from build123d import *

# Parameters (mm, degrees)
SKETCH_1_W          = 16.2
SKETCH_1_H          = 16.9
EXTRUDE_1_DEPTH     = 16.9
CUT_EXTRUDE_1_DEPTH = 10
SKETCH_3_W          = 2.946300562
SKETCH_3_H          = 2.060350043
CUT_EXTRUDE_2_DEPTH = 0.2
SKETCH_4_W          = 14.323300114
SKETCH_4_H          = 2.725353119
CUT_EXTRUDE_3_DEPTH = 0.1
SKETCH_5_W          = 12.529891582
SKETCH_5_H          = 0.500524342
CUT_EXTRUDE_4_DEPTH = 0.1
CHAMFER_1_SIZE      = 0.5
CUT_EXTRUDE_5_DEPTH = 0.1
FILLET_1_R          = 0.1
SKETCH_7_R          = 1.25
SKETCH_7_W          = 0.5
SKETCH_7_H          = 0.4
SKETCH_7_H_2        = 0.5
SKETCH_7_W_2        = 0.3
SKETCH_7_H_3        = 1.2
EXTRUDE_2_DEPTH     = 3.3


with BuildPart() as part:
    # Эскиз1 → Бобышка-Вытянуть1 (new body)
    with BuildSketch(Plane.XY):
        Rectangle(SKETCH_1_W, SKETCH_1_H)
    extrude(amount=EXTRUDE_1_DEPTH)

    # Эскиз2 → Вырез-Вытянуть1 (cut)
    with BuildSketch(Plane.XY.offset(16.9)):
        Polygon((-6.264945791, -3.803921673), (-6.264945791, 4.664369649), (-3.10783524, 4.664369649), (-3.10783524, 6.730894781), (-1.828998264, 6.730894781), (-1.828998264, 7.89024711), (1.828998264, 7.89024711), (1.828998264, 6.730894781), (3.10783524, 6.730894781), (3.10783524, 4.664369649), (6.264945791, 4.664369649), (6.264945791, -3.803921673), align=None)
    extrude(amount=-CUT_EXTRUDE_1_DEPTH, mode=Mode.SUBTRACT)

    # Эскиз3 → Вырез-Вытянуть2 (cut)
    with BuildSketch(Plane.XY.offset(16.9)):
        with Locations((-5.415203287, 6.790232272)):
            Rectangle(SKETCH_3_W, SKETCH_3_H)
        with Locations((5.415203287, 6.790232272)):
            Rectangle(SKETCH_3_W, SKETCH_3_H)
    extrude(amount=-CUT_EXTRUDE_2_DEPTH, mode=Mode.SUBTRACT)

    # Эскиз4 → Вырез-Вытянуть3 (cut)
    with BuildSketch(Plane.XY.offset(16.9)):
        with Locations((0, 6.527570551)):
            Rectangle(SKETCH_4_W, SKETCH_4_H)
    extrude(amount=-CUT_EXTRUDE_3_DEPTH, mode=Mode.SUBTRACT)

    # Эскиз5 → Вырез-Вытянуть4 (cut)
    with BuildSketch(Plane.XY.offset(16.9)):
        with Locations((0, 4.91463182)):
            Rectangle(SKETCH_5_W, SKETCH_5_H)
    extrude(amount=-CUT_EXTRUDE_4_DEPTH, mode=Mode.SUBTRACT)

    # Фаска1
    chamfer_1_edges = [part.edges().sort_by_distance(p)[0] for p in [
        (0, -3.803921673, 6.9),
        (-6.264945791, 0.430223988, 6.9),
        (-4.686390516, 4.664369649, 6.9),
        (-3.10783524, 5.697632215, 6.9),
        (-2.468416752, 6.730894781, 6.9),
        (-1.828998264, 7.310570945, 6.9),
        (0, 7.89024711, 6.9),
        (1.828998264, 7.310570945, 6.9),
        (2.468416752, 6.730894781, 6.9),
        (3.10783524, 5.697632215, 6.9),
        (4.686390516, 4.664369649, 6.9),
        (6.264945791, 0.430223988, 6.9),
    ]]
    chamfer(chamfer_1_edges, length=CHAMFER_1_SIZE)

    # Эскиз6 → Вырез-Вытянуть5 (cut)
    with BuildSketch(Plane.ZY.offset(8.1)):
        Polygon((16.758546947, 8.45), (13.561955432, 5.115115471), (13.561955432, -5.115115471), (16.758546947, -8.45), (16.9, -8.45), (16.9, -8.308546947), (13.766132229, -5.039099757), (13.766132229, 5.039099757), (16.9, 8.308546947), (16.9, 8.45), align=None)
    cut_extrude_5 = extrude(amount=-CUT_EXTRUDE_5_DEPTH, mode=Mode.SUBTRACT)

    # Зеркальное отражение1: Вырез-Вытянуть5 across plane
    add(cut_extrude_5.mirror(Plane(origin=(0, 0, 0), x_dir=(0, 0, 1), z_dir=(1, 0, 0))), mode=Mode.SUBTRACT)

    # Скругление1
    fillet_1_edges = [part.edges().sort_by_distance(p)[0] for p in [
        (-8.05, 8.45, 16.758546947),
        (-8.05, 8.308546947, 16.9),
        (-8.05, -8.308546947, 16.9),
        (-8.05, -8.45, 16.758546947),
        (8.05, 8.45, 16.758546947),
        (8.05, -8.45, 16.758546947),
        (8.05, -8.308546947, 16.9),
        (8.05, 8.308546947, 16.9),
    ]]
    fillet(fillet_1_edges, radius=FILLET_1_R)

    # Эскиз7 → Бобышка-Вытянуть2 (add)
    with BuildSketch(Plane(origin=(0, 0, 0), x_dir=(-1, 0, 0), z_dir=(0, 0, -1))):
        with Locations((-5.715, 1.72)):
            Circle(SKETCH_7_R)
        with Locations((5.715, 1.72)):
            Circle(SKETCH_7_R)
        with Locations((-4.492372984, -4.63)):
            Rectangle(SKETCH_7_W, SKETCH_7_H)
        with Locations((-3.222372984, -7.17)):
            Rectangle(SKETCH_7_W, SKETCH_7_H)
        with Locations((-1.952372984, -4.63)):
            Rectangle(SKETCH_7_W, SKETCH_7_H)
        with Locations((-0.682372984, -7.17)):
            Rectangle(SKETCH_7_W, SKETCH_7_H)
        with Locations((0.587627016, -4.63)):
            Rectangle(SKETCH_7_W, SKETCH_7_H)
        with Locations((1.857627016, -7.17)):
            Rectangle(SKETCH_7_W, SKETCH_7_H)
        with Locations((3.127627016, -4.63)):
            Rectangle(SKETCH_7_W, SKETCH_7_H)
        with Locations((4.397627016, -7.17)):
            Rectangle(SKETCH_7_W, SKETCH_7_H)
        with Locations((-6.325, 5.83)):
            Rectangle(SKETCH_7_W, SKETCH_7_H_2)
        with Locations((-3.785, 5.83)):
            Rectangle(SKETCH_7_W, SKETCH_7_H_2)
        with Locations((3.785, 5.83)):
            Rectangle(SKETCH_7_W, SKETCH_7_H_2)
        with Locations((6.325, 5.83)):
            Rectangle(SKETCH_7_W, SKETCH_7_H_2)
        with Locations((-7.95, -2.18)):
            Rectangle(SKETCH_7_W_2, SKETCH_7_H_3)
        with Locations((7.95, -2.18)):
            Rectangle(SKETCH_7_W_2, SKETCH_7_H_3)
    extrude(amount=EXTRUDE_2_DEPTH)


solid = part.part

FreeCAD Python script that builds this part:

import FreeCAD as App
import Part
import Sketcher
from FreeCAD import Vector


def edges_at(feature, points):
    """Names of the edges that pass closest to the given points."""
    edges = feature.Shape.Edges
    near = lambda p: min(range(len(edges)), key=lambda i: edges[i].distToShape(Part.Vertex(*p))[0])
    return sorted({f"Edge{near(p) + 1}" for p in points})


def add_polygon(sketch, points):
    """Adds a closed chain of lines whose ends are joined by coincident constraints."""
    first, n = sketch.GeometryCount, len(points)
    for a, b in zip(points, points[1:] + points[:1]):
        sketch.addGeometry(Part.LineSegment(App.Vector(*a, 0), App.Vector(*b, 0)), False)
    for i in range(n):
        sketch.addConstraint(Sketcher.Constraint("Coincident", first + i, 2, first + (i + 1) % n, 1))

doc = App.newDocument("Part")
body = doc.addObject("PartDesign::Body", "Body")

# Sketch on XY plane
sketch1 = body.newObject("Sketcher::SketchObject", "Sketch")
sketch1.AttachmentSupport = (doc.getObject("XY_Plane"), [""])
sketch1.MapMode = "FlatFace"
add_polygon(sketch1, [(-8, 8), (-8, -8), (8, -8), (8, 8)])  # lines 0-3
sketch1.addConstraint(Sketcher.Constraint("Vertical", 0))
sketch1.addConstraint(Sketcher.Constraint("Horizontal", 1))
sketch1.addConstraint(Sketcher.Constraint("Vertical", 2))
sketch1.addConstraint(Sketcher.Constraint("Horizontal", 3))
sketch1.addConstraint(Sketcher.Constraint("Symmetric", 0, 2, 2, 2, -1, 1))
sketch1.addConstraint(Sketcher.Constraint("DistanceX", 1, 1, 1, 2, 16.2))
sketch1.addConstraint(Sketcher.Constraint("DistanceY", 0, 2, 0, 1, 16.9))
pad1 = body.newObject("PartDesign::Pad", "Pad")
pad1.Profile = sketch1
pad1.Length = 16.9

# Sketch on XY plane
sketch2 = body.newObject("Sketcher::SketchObject", "Sketch001")
sketch2.AttachmentSupport = (doc.getObject("XY_Plane"), [""])
sketch2.MapMode = "FlatFace"
sketch2.AttachmentOffset = App.Placement(Vector(0, 0, 16.9), App.Rotation())
add_polygon(sketch2, [(-6.3, 4.7), (-6.3, -3.8), (6.3, -3.8), (6.3, 4.7), (3.1, 4.7), (3.1, 6.7), (1.8, 6.7), (1.8, 7.9), (-1.8, 7.9), (-1.8, 6.7), (-3.1, 6.7), (-3.1, 4.7)])  # lines 0-11
sketch2.addConstraint(Sketcher.Constraint("Vertical", 0))
sketch2.addConstraint(Sketcher.Constraint("Horizontal", 1))
sketch2.addConstraint(Sketcher.Constraint("Vertical", 2))
sketch2.addConstraint(Sketcher.Constraint("Horizontal", 3))
sketch2.addConstraint(Sketcher.Constraint("Vertical", 4))
sketch2.addConstraint(Sketcher.Constraint("Horizontal", 5))
sketch2.addConstraint(Sketcher.Constraint("Vertical", 6))
sketch2.addConstraint(Sketcher.Constraint("Horizontal", 7))
sketch2.addConstraint(Sketcher.Constraint("Vertical", 8))
sketch2.addConstraint(Sketcher.Constraint("Horizontal", 9))
sketch2.addConstraint(Sketcher.Constraint("Vertical", 10))
sketch2.addConstraint(Sketcher.Constraint("Horizontal", 11))
sketch2.addConstraint(Sketcher.Constraint("Symmetric", 5, 2, 8, 2, -2))
sketch2.addConstraint(Sketcher.Constraint("Symmetric", 3, 2, 10, 2, -2))
sketch2.addConstraint(Sketcher.Constraint("Equal", 3, 11))
sketch2.addConstraint(Sketcher.Constraint("DistanceX", -1, 1, 5, 2, 1.828998))
sketch2.addConstraint(Sketcher.Constraint("DistanceX", 1, 1, 1, 2, 12.529892))
sketch2.addConstraint(Sketcher.Constraint("DistanceX", 3, 2, 3, 1, 3.157111))
sketch2.addConstraint(Sketcher.Constraint("DistanceY", 0, 2, 0, 1, 8.468291))
sketch2.addConstraint(Sketcher.Constraint("DistanceY", 4, 1, 4, 2, 2.066525))
sketch2.addConstraint(Sketcher.Constraint("DistanceY", 6, 1, 6, 2, 1.159352))
sketch2.addConstraint(Sketcher.Constraint("DistanceY", 0, 2, -1, 1, 3.803922))
pocket1 = body.newObject("PartDesign::Pocket", "Pocket")
pocket1.Profile = sketch2
pocket1.Length = 10

# Sketch on XY plane
sketch3 = body.newObject("Sketcher::SketchObject", "Sketch002")
sketch3.AttachmentSupport = (doc.getObject("XY_Plane"), [""])
sketch3.MapMode = "FlatFace"
sketch3.AttachmentOffset = App.Placement(Vector(0, 0, 16.9), App.Rotation())
add_polygon(sketch3, [(-6.9, 7.8), (-6.9, 5.8), (-3.9, 5.8), (-3.9, 7.8)])  # lines 0-3
add_polygon(sketch3, [(3.9, 7.8), (3.9, 5.8), (6.9, 5.8), (6.9, 7.8)])  # lines 4-7
sketch3.addConstraint(Sketcher.Constraint("Vertical", 0))
sketch3.addConstraint(Sketcher.Constraint("Horizontal", 1))
sketch3.addConstraint(Sketcher.Constraint("Vertical", 2))
sketch3.addConstraint(Sketcher.Constraint("Horizontal", 3))
sketch3.addConstraint(Sketcher.Constraint("Vertical", 4))
sketch3.addConstraint(Sketcher.Constraint("Horizontal", 5))
sketch3.addConstraint(Sketcher.Constraint("Vertical", 6))
sketch3.addConstraint(Sketcher.Constraint("Horizontal", 7))
sketch3.addConstraint(Sketcher.Constraint("Symmetric", 1, 2, 4, 2, -2))
sketch3.addConstraint(Sketcher.Constraint("Symmetric", 3, 2, 6, 2, -2))
sketch3.addConstraint(Sketcher.Constraint("DistanceX", 1, 1, 1, 2, 2.946301))
sketch3.addConstraint(Sketcher.Constraint("DistanceY", 0, 2, 0, 1, 2.06035))
sketch3.addConstraint(Sketcher.Constraint("DistanceX", 0, 2, -1, 1, 6.888354))
sketch3.addConstraint(Sketcher.Constraint("DistanceY", -1, 1, 0, 2, 5.760057))
pocket2 = body.newObject("PartDesign::Pocket", "Pocket001")
pocket2.Profile = sketch3
pocket2.Length = 0.2

# Sketch on XY plane
sketch4 = body.newObject("Sketcher::SketchObject", "Sketch003")
sketch4.AttachmentSupport = (doc.getObject("XY_Plane"), [""])
sketch4.MapMode = "FlatFace"
sketch4.AttachmentOffset = App.Placement(Vector(0, 0, 16.9), App.Rotation())
add_polygon(sketch4, [(-7.2, 7.9), (-7.2, 5.2), (7.2, 5.2), (7.2, 7.9)])  # lines 0-3
sketch4.addConstraint(Sketcher.Constraint("Vertical", 0))
sketch4.addConstraint(Sketcher.Constraint("Horizontal", 1))
sketch4.addConstraint(Sketcher.Constraint("Vertical", 2))
sketch4.addConstraint(Sketcher.Constraint("Horizontal", 3))
sketch4.addConstraint(Sketcher.Constraint("DistanceX", 1, 1, 1, 2, 14.3233))
sketch4.addConstraint(Sketcher.Constraint("DistanceY", 0, 2, 0, 1, 2.725353))
sketch4.addConstraint(Sketcher.Constraint("DistanceX", 0, 2, -1, 1, 7.16165))
sketch4.addConstraint(Sketcher.Constraint("DistanceY", -1, 1, 0, 2, 5.164894))
pocket3 = body.newObject("PartDesign::Pocket", "Pocket002")
pocket3.Profile = sketch4
pocket3.Length = 0.1

# Sketch on XY plane
sketch5 = body.newObject("Sketcher::SketchObject", "Sketch004")
sketch5.AttachmentSupport = (doc.getObject("XY_Plane"), [""])
sketch5.MapMode = "FlatFace"
sketch5.AttachmentOffset = App.Placement(Vector(0, 0, 16.9), App.Rotation())
add_polygon(sketch5, [(-6.3, 5.2), (-6.3, 4.7), (6.3, 4.7), (6.3, 5.2)])  # lines 0-3
sketch5.addConstraint(Sketcher.Constraint("Vertical", 0))
sketch5.addConstraint(Sketcher.Constraint("Horizontal", 1))
sketch5.addConstraint(Sketcher.Constraint("Vertical", 2))
sketch5.addConstraint(Sketcher.Constraint("Horizontal", 3))
sketch5.addConstraint(Sketcher.Constraint("DistanceX", 1, 1, 1, 2, 12.529892))
sketch5.addConstraint(Sketcher.Constraint("DistanceY", 0, 2, 0, 1, 0.500524))
sketch5.addConstraint(Sketcher.Constraint("DistanceY", -1, 1, 0, 2, 4.66437))
sketch5.addConstraint(Sketcher.Constraint("DistanceX", 0, 2, -1, 1, 6.264946))
pocket4 = body.newObject("PartDesign::Pocket", "Pocket003")
pocket4.Profile = sketch5
pocket4.Length = 0.1
doc.recompute()

chamfer = body.newObject("PartDesign::Chamfer", "Chamfer")
chamfer.Base = (pocket4, edges_at(pocket4, [
    (0, -3.804, 6.9),
    (-6.265, 0.43, 6.9),
    (-4.686, 4.664, 6.9),
    (-3.108, 5.698, 6.9),
    (-2.468, 6.731, 6.9),
    (-1.829, 7.311, 6.9),
    (0, 7.89, 6.9),
    (1.829, 7.311, 6.9),
    (2.468, 6.731, 6.9),
    (3.108, 5.698, 6.9),
    (4.686, 4.664, 6.9),
    (6.265, 0.43, 6.9),
]))
chamfer.Size = 0.5

# Sketch on YZ plane
sketch6 = body.newObject("Sketcher::SketchObject", "Sketch005")
sketch6.AttachmentSupport = (doc.getObject("YZ_Plane"), [""])
sketch6.MapMode = "FlatFace"
sketch6.AttachmentOffset = App.Placement(Vector(0, 0, -8.1), App.Rotation())
add_polygon(sketch6, [(8.45, 16.76), (5.12, 13.56), (-5.12, 13.56), (-8.45, 16.76), (-8.45, 16.9), (-8.31, 16.9), (-5.04, 13.77), (5.04, 13.77), (8.31, 16.9), (8.45, 16.9)])  # lines 0-9
sketch6.addConstraint(Sketcher.Constraint("Horizontal", 1))
sketch6.addConstraint(Sketcher.Constraint("Vertical", 3))
sketch6.addConstraint(Sketcher.Constraint("Horizontal", 4))
sketch6.addConstraint(Sketcher.Constraint("Horizontal", 6))
sketch6.addConstraint(Sketcher.Constraint("Horizontal", 8))
sketch6.addConstraint(Sketcher.Constraint("Vertical", 9))
sketch6.addConstraint(Sketcher.Constraint("Symmetric", 4, 2, 7, 2, -2))
sketch6.addConstraint(Sketcher.Constraint("Symmetric", 2, 2, 9, 2, -2))
sketch6.addConstraint(Sketcher.Constraint("Parallel", 2, 5))
sketch6.addConstraint(Sketcher.Constraint("Parallel", 0, 7))
sketch6.addConstraint(Sketcher.Constraint("Equal", 8, 3))
sketch6.addConstraint(Sketcher.Constraint("Equal", 0, 2))
sketch6.addConstraint(Sketcher.Constraint("DistanceY", -1, 1, 3, 2, 16.9))
sketch6.addConstraint(Sketcher.Constraint("DistanceX", 2, 2, -1, 1, 8.45))
sketch6.addConstraint(Sketcher.Constraint("DistanceX", 6, 1, 6, 2, 10.0782))
sketch6.addConstraint(Sketcher.Constraint("DistanceX", 1, 2, 1, 1, 10.230231))
sketch6.addConstraint(Sketcher.Constraint("DistanceX", 4, 1, 4, 2, 0.141453))
sketch6.addConstraint(Sketcher.Constraint("DistanceY", 1, 2, 2, 2, 3.196592))
pocket5 = body.newObject("PartDesign::Pocket", "Pocket004")
pocket5.Profile = sketch6
pocket5.Length = 0.1
pocket5.Reversed = True
doc.recompute()

mirrored = body.newObject("PartDesign::Mirrored", "Mirrored")
mirrored.Originals = [pocket5]
mirrored.MirrorPlane = (doc.getObject("YZ_Plane"), [""])
body.Tip = mirrored
doc.recompute()

fillet = body.newObject("PartDesign::Fillet", "Fillet")
fillet.Base = (mirrored, edges_at(mirrored, [
    (-8.05, 8.45, 16.759),
    (-8.05, 8.309, 16.9),
    (-8.05, -8.309, 16.9),
    (-8.05, -8.45, 16.759),
    (8.05, 8.45, 16.759),
    (8.05, -8.45, 16.759),
    (8.05, -8.309, 16.9),
    (8.05, 8.309, 16.9),
]))
fillet.Radius = 0.1

# Sketch on XY plane
sketch7 = body.newObject("Sketcher::SketchObject", "Sketch006")
sketch7.AttachmentSupport = (doc.getObject("XY_Plane"), [""])
sketch7.MapMode = "FlatFace"
sketch7.addGeometry(Part.Circle(Vector(5.71, 1.72, 0), Vector(0, 0, 1), 1.25), False)  # 0
sketch7.addGeometry(Part.Circle(Vector(-5.71, 1.72, 0), Vector(0, 0, 1), 1.25), False)  # 1
add_polygon(sketch7, [(4.74, -4.43), (4.74, -4.83), (4.24, -4.83), (4.24, -4.43)])  # lines 2-5
add_polygon(sketch7, [(3.47, -6.97), (3.47, -7.37), (2.97, -7.37), (2.97, -6.97)])  # lines 6-9
add_polygon(sketch7, [(2.2, -4.43), (2.2, -4.83), (1.7, -4.83), (1.7, -4.43)])  # lines 10-13
add_polygon(sketch7, [(0.93, -6.97), (0.93, -7.37), (0.43, -7.37), (0.43, -6.97)])  # lines 14-17
add_polygon(sketch7, [(-0.34, -4.43), (-0.34, -4.83), (-0.84, -4.83), (-0.84, -4.43)])  # lines 18-21
add_polygon(sketch7, [(-1.61, -6.97), (-1.61, -7.37), (-2.11, -7.37), (-2.11, -6.97)])  # lines 22-25
add_polygon(sketch7, [(-2.88, -4.43), (-2.88, -4.83), (-3.38, -4.83), (-3.38, -4.43)])  # lines 26-29
add_polygon(sketch7, [(-4.15, -6.97), (-4.15, -7.37), (-4.65, -7.37), (-4.65, -6.97)])  # lines 30-33
add_polygon(sketch7, [(6.58, 6.08), (6.58, 5.58), (6.08, 5.58), (6.08, 6.08)])  # lines 34-37
add_polygon(sketch7, [(4.04, 6.08), (4.04, 5.58), (3.54, 5.58), (3.54, 6.08)])  # lines 38-41
add_polygon(sketch7, [(-3.54, 6.08), (-3.54, 5.58), (-4.04, 5.58), (-4.04, 6.08)])  # lines 42-45
add_polygon(sketch7, [(-6.08, 6.08), (-6.08, 5.58), (-6.58, 5.58), (-6.58, 6.08)])  # lines 46-49
add_polygon(sketch7, [(8.1, -1.58), (8.1, -2.78), (7.8, -2.78), (7.8, -1.58)])  # lines 50-53
add_polygon(sketch7, [(-7.8, -1.58), (-7.8, -2.78), (-8.1, -2.78), (-8.1, -1.58)])  # lines 54-57
sketch7.addConstraint(Sketcher.Constraint("Vertical", 2))
sketch7.addConstraint(Sketcher.Constraint("Horizontal", 3))
sketch7.addConstraint(Sketcher.Constraint("Vertical", 4))
sketch7.addConstraint(Sketcher.Constraint("Horizontal", 5))
sketch7.addConstraint(Sketcher.Constraint("Vertical", 6))
sketch7.addConstraint(Sketcher.Constraint("Horizontal", 7))
sketch7.addConstraint(Sketcher.Constraint("Vertical", 8))
sketch7.addConstraint(Sketcher.Constraint("Horizontal", 9))
sketch7.addConstraint(Sketcher.Constraint("Vertical", 10))
sketch7.addConstraint(Sketcher.Constraint("Horizontal", 11))
sketch7.addConstraint(Sketcher.Constraint("Vertical", 12))
sketch7.addConstraint(Sketcher.Constraint("Horizontal", 13))
sketch7.addConstraint(Sketcher.Constraint("Vertical", 14))
sketch7.addConstraint(Sketcher.Constraint("Horizontal", 15))
sketch7.addConstraint(Sketcher.Constraint("Vertical", 16))
sketch7.addConstraint(Sketcher.Constraint("Horizontal", 17))
sketch7.addConstraint(Sketcher.Constraint("Vertical", 18))
sketch7.addConstraint(Sketcher.Constraint("Horizontal", 19))
sketch7.addConstraint(Sketcher.Constraint("Vertical", 20))
sketch7.addConstraint(Sketcher.Constraint("Horizontal", 21))
sketch7.addConstraint(Sketcher.Constraint("Vertical", 22))
sketch7.addConstraint(Sketcher.Constraint("Horizontal", 23))
sketch7.addConstraint(Sketcher.Constraint("Vertical", 24))
sketch7.addConstraint(Sketcher.Constraint("Horizontal", 25))
sketch7.addConstraint(Sketcher.Constraint("Vertical", 26))
sketch7.addConstraint(Sketcher.Constraint("Horizontal", 27))
sketch7.addConstraint(Sketcher.Constraint("Vertical", 28))
sketch7.addConstraint(Sketcher.Constraint("Horizontal", 29))
sketch7.addConstraint(Sketcher.Constraint("Vertical", 30))
sketch7.addConstraint(Sketcher.Constraint("Horizontal", 31))
sketch7.addConstraint(Sketcher.Constraint("Vertical", 32))
sketch7.addConstraint(Sketcher.Constraint("Horizontal", 33))
sketch7.addConstraint(Sketcher.Constraint("Vertical", 34))
sketch7.addConstraint(Sketcher.Constraint("Horizontal", 35))
sketch7.addConstraint(Sketcher.Constraint("Vertical", 36))
sketch7.addConstraint(Sketcher.Constraint("Horizontal", 37))
sketch7.addConstraint(Sketcher.Constraint("Vertical", 38))
sketch7.addConstraint(Sketcher.Constraint("Horizontal", 39))
sketch7.addConstraint(Sketcher.Constraint("Vertical", 40))
sketch7.addConstraint(Sketcher.Constraint("Horizontal", 41))
sketch7.addConstraint(Sketcher.Constraint("Vertical", 42))
sketch7.addConstraint(Sketcher.Constraint("Horizontal", 43))
sketch7.addConstraint(Sketcher.Constraint("Vertical", 44))
sketch7.addConstraint(Sketcher.Constraint("Horizontal", 45))
sketch7.addConstraint(Sketcher.Constraint("Vertical", 46))
sketch7.addConstraint(Sketcher.Constraint("Horizontal", 47))
sketch7.addConstraint(Sketcher.Constraint("Vertical", 48))
sketch7.addConstraint(Sketcher.Constraint("Horizontal", 49))
sketch7.addConstraint(Sketcher.Constraint("Vertical", 50))
sketch7.addConstraint(Sketcher.Constraint("Horizontal", 51))
sketch7.addConstraint(Sketcher.Constraint("Vertical", 52))
sketch7.addConstraint(Sketcher.Constraint("Horizontal", 53))
sketch7.addConstraint(Sketcher.Constraint("Vertical", 54))
sketch7.addConstraint(Sketcher.Constraint("Horizontal", 55))
sketch7.addConstraint(Sketcher.Constraint("Vertical", 56))
sketch7.addConstraint(Sketcher.Constraint("Horizontal", 57))
sketch7.addConstraint(Sketcher.Constraint("Equal", 0, 1))
sketch7.addConstraint(Sketcher.Constraint("Symmetric", 0, 3, 1, 3, -2))
sketch7.addConstraint(Sketcher.Constraint("Symmetric", 39, 2, 42, 2, -2))
sketch7.addConstraint(Sketcher.Constraint("Symmetric", 41, 2, 44, 2, -2))
sketch7.addConstraint(Sketcher.Constraint("Symmetric", 35, 2, 46, 2, -2))
sketch7.addConstraint(Sketcher.Constraint("Symmetric", 37, 2, 48, 2, -2))
sketch7.addConstraint(Sketcher.Constraint("Symmetric", 51, 2, 54, 2, -2))
sketch7.addConstraint(Sketcher.Constraint("Symmetric", 53, 2, 56, 2, -2))
sketch7.addConstraint(Sketcher.Constraint("Horizontal", 3, 2, 10, 2))
sketch7.addConstraint(Sketcher.Constraint("Horizontal", 5, 2, 12, 2))
sketch7.addConstraint(Sketcher.Constraint("Horizontal", 7, 2, 14, 2))
sketch7.addConstraint(Sketcher.Constraint("Horizontal", 9, 2, 16, 2))
sketch7.addConstraint(Sketcher.Constraint("Horizontal", 11, 2, 18, 2))
sketch7.addConstraint(Sketcher.Constraint("Horizontal", 13, 2, 20, 2))
sketch7.addConstraint(Sketcher.Constraint("Horizontal", 15, 2, 22, 2))
sketch7.addConstraint(Sketcher.Constraint("Horizontal", 17, 2, 24, 2))
sketch7.addConstraint(Sketcher.Constraint("Horizontal", 19, 2, 26, 2))
sketch7.addConstraint(Sketcher.Constraint("Horizontal", 21, 2, 28, 2))
sketch7.addConstraint(Sketcher.Constraint("Horizontal", 23, 2, 30, 2))
sketch7.addConstraint(Sketcher.Constraint("Horizontal", 25, 2, 32, 2))
sketch7.addConstraint(Sketcher.Constraint("Horizontal", 35, 2, 38, 2))
sketch7.addConstraint(Sketcher.Constraint("Horizontal", 37, 2, 40, 2))
sketch7.addConstraint(Sketcher.Constraint("Equal", 5, 7))
sketch7.addConstraint(Sketcher.Constraint("Equal", 9, 11))
sketch7.addConstraint(Sketcher.Constraint("Equal", 13, 15))
sketch7.addConstraint(Sketcher.Constraint("Equal", 17, 19))
sketch7.addConstraint(Sketcher.Constraint("Equal", 21, 23))
sketch7.addConstraint(Sketcher.Constraint("Equal", 25, 27))
sketch7.addConstraint(Sketcher.Constraint("Equal", 29, 31))
sketch7.addConstraint(Sketcher.Constraint("Equal", 33, 35))
sketch7.addConstraint(Sketcher.Constraint("Equal", 37, 39))
sketch7.addConstraint(Sketcher.Constraint("Equal", 4, 6))
sketch7.addConstraint(Sketcher.Constraint("Equal", 49, 34))
sketch7.addConstraint(Sketcher.Constraint("Diameter", 0, 2.5))
sketch7.addConstraint(Sketcher.Constraint("DistanceX", 3, 2, 3, 1, 0.5))
sketch7.addConstraint(Sketcher.Constraint("DistanceX", 51, 2, 51, 1, 0.3))
sketch7.addConstraint(Sketcher.Constraint("DistanceY", 2, 2, 2, 1, 0.4))
sketch7.addConstraint(Sketcher.Constraint("DistanceY", 50, 2, 50, 1, 1.2))
sketch7.addConstraint(Sketcher.Constraint("DistanceX", -1, 1, 50, 2, 8.1))
sketch7.addConstraint(Sketcher.Constraint("DistanceY", 50, 2, 0, 3, 4.5))
sketch7.addConstraint(Sketcher.Constraint("DistanceY", -1, 1, 0, 3, 1.72))
sketch7.addConstraint(Sketcher.Constraint("DistanceY", 2, 2, -1, 1, 4.83))
sketch7.addConstraint(Sketcher.Constraint("DistanceY", 6, 2, -1, 1, 7.37))
sketch7.addConstraint(Sketcher.Constraint("DistanceY", -1, 1, 34, 2, 5.58))
sketch7.addConstraint(Sketcher.Constraint("DistanceX", 1, 3, 0, 3, 11.43))
sketch7.addConstraint(Sketcher.Constraint("DistanceX", 6, 2, 3, 2, 0.77))
sketch7.addConstraint(Sketcher.Constraint("DistanceX", 10, 2, 3, 2, 2.04))
sketch7.addConstraint(Sketcher.Constraint("DistanceX", 14, 2, 7, 2, 2.04))
sketch7.addConstraint(Sketcher.Constraint("DistanceX", 18, 2, 11, 2, 2.04))
sketch7.addConstraint(Sketcher.Constraint("DistanceX", 22, 2, 15, 2, 2.04))
sketch7.addConstraint(Sketcher.Constraint("DistanceX", 26, 2, 19, 2, 2.04))
sketch7.addConstraint(Sketcher.Constraint("DistanceX", 30, 2, 23, 2, 2.04))
sketch7.addConstraint(Sketcher.Constraint("DistanceX", 0, 3, 34, 2, 0.86))
sketch7.addConstraint(Sketcher.Constraint("DistanceX", 38, 2, 35, 2, 2.04))
sketch7.addConstraint(Sketcher.Constraint("DistanceX", -1, 1, 2, 2, 4.742373))
pad2 = body.newObject("PartDesign::Pad", "Pad001")
pad2.Profile = sketch7
pad2.Length = 3.3
pad2.Reversed = True

doc.recompute()
